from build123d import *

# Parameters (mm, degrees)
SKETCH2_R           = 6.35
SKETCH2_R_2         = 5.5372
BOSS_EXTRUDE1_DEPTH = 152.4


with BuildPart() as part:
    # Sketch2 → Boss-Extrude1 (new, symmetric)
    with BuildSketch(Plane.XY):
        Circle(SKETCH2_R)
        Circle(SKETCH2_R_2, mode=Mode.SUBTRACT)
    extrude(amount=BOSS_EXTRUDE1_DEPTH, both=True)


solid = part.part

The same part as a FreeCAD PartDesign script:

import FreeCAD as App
import Part
import Sketcher

V = App.Vector
Q = App.Units.Quantity

doc = App.newDocument("Part")
params = doc.addObject("Spreadsheet::Sheet", "Params")
for row, (alias, value) in enumerate([
    ("sketch1_diameter", "0.5 in"),
    ("sketch1_diameter2", "0.436 in"),
    ("pad1_length", "12 in"),
], start=1):
    params.set(f"A{row}", alias)
    params.set(f"B{row}", "=" + value)
    params.setAlias(f"B{row}", alias)

body = doc.addObject("PartDesign::Body", "Body")

sketch1 = body.newObject("Sketcher::SketchObject", "Sketch")
sketch1.AttachmentSupport = (doc.getObject("XY_Plane"), [""])
sketch1.MapMode = "FlatFace"
sketch1.addGeometry([
    Part.Circle(V(0, 0, 0), V(0, 0, 1), 6.35),
    Part.Circle(V(0, 0, 0), V(0, 0, 1), 5.5372),
], False)
sketch1.addConstraint([
    Sketcher.Constraint("Coincident", 0, 3, -1, 1),
    Sketcher.Constraint("Coincident", 1, 3, -1, 1),
    Sketcher.Constraint("Diameter", 0, Q("0.5 in")),
    Sketcher.Constraint("Diameter", 1, Q("0.436 in")),
])
sketch1.setExpression("Constraints[2]", "Params.sketch1_diameter")
sketch1.setExpression("Constraints[3]", "Params.sketch1_diameter2")
pad1 = body.newObject("PartDesign::Pad", "Pad")
pad1.Profile = sketch1
pad1.setExpression("Length", "Params.pad1_length")
pad1.Midplane = True

doc.recompute()
